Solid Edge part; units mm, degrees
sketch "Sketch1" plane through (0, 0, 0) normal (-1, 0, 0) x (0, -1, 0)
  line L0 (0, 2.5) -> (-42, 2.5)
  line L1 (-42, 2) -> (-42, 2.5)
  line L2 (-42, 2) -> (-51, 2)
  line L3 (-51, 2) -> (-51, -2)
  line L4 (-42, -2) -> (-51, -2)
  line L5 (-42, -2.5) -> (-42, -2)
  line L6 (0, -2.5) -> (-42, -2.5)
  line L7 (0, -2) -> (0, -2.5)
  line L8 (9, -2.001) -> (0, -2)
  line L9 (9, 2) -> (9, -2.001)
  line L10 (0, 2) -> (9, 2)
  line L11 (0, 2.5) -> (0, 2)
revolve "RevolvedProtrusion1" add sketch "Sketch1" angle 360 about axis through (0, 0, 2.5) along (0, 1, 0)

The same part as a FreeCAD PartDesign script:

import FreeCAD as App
import Part
import Sketcher

doc = App.newDocument("Part")
body = doc.addObject("PartDesign::Body", "Body")

sketch1 = doc.addObject("Sketcher::SketchObject", "Sketch")
body.addObject(sketch1)
sketch1.AttachmentSupport = (doc.YZ_Plane, [""])
sketch1.MapMode = "FlatFace"
sketch1.addGeometry(Part.LineSegment(App.Vector(0, 2, 0), App.Vector(0, 2.5, 0)), False)
sketch1.addGeometry(Part.LineSegment(App.Vector(0, 2.5, 0), App.Vector(42, 2.5, 0)), False)
sketch1.addGeometry(Part.LineSegment(App.Vector(42, 2.5, 0), App.Vector(42, 2, 0)), False)
sketch1.addGeometry(Part.LineSegment(App.Vector(42, 2, 0), App.Vector(51, 2, 0)), False)
sketch1.addGeometry(Part.LineSegment(App.Vector(51, 2, 0), App.Vector(51, -2, 0)), False)
sketch1.addGeometry(Part.LineSegment(App.Vector(51, -2, 0), App.Vector(42, -2, 0)), False)
sketch1.addGeometry(Part.LineSegment(App.Vector(42, -2, 0), App.Vector(42, -2.5, 0)), False)
sketch1.addGeometry(Part.LineSegment(App.Vector(42, -2.5, 0), App.Vector(0, -2.5, 0)), False)
sketch1.addGeometry(Part.LineSegment(App.Vector(0, -2.5, 0), App.Vector(0, -2, 0)), False)
sketch1.addGeometry(Part.LineSegment(App.Vector(0, -2, 0), App.Vector(-9, -2.001, 0)), False)
sketch1.addGeometry(Part.LineSegment(App.Vector(-9, -2.001, 0), App.Vector(-9, 2, 0)), False)
sketch1.addGeometry(Part.LineSegment(App.Vector(-9, 2, 0), App.Vector(0, 2, 0)), False)
sketch1.addGeometry(Part.LineSegment(App.Vector(-9, 2.5, 0), App.Vector(51, 2.5, 0)), True)
sketch1.addConstraint(Sketcher.Constraint("Coincident", 0, 2, 1, 1))
sketch1.addConstraint(Sketcher.Constraint("Coincident", 1, 2, 2, 1))
sketch1.addConstraint(Sketcher.Constraint("Coincident", 2, 2, 3, 1))
sketch1.addConstraint(Sketcher.Constraint("Coincident", 3, 2, 4, 1))
sketch1.addConstraint(Sketcher.Constraint("Coincident", 4, 2, 5, 1))
sketch1.addConstraint(Sketcher.Constraint("Coincident", 5, 2, 6, 1))
sketch1.addConstraint(Sketcher.Constraint("Coincident", 6, 2, 7, 1))
sketch1.addConstraint(Sketcher.Constraint("Coincident", 7, 2, 8, 1))
sketch1.addConstraint(Sketcher.Constraint("Coincident", 8, 2, 9, 1))
sketch1.addConstraint(Sketcher.Constraint("Coincident", 9, 2, 10, 1))
sketch1.addConstraint(Sketcher.Constraint("Coincident", 10, 2, 11, 1))
sketch1.addConstraint(Sketcher.Constraint("Coincident", 11, 2, 0, 1))
sketch1.addConstraint(Sketcher.Constraint("Vertical", 0))
sketch1.addConstraint(Sketcher.Constraint("Horizontal", 1))
sketch1.addConstraint(Sketcher.Constraint("Vertical", 2))
sketch1.addConstraint(Sketcher.Constraint("Horizontal", 3))
sketch1.addConstraint(Sketcher.Constraint("Vertical", 4))
sketch1.addConstraint(Sketcher.Constraint("Horizontal", 5))
sketch1.addConstraint(Sketcher.Constraint("Vertical", 6))
sketch1.addConstraint(Sketcher.Constraint("Horizontal", 7))
sketch1.addConstraint(Sketcher.Constraint("Vertical", 8))
sketch1.addConstraint(Sketcher.Constraint("Vertical", 10))
sketch1.addConstraint(Sketcher.Constraint("Horizontal", 11))
sketch1.addConstraint(Sketcher.Constraint("Horizontal", 12))
sketch1.addConstraint(Sketcher.Constraint("Symmetric", 0, 2, 7, 2, -1, 1))
sketch1.addConstraint(Sketcher.Constraint("Symmetric", 2, 2, 5, 2, -1))
sketch1.addConstraint(Sketcher.Constraint("Symmetric", 8, 2, 11, 2, -1))
sketch1.addConstraint(Sketcher.Constraint("Horizontal", 5, 2, 8, 2))
sketch1.addConstraint(Sketcher.Constraint("Horizontal", 1, 2, 12, 1))
sketch1.addConstraint(Sketcher.Constraint("Vertical", 10, 2, 12, 1))
sketch1.addConstraint(Sketcher.Constraint("Vertical", 4, 2, 12, 2))
sketch1.addConstraint(Sketcher.Constraint("Equal", 5, 11))
sketch1.addConstraint(Sketcher.Constraint("DistanceX", 1, 1, 1, 2, 42.0))
sketch1.addConstraint(Sketcher.Constraint("DistanceX", 3, 1, 3, 2, 9.0))
sketch1.addConstraint(Sketcher.Constraint("DistanceY", 4, 2, 4, 1, 4.0))
sketch1.addConstraint(Sketcher.Constraint("DistanceY", 0, 1, 0, 2, 0.5))
sketch1.addConstraint(Sketcher.Constraint("DistanceY", 10, 1, 10, 2, 4.001))
revolution = doc.addObject("PartDesign::Revolution", "Revolution")
body.addObject(revolution)
revolution.Profile = sketch1
revolution.ReferenceAxis = (sketch1, ["Axis0"])
revolution.Angle = 360

doc.recompute()
